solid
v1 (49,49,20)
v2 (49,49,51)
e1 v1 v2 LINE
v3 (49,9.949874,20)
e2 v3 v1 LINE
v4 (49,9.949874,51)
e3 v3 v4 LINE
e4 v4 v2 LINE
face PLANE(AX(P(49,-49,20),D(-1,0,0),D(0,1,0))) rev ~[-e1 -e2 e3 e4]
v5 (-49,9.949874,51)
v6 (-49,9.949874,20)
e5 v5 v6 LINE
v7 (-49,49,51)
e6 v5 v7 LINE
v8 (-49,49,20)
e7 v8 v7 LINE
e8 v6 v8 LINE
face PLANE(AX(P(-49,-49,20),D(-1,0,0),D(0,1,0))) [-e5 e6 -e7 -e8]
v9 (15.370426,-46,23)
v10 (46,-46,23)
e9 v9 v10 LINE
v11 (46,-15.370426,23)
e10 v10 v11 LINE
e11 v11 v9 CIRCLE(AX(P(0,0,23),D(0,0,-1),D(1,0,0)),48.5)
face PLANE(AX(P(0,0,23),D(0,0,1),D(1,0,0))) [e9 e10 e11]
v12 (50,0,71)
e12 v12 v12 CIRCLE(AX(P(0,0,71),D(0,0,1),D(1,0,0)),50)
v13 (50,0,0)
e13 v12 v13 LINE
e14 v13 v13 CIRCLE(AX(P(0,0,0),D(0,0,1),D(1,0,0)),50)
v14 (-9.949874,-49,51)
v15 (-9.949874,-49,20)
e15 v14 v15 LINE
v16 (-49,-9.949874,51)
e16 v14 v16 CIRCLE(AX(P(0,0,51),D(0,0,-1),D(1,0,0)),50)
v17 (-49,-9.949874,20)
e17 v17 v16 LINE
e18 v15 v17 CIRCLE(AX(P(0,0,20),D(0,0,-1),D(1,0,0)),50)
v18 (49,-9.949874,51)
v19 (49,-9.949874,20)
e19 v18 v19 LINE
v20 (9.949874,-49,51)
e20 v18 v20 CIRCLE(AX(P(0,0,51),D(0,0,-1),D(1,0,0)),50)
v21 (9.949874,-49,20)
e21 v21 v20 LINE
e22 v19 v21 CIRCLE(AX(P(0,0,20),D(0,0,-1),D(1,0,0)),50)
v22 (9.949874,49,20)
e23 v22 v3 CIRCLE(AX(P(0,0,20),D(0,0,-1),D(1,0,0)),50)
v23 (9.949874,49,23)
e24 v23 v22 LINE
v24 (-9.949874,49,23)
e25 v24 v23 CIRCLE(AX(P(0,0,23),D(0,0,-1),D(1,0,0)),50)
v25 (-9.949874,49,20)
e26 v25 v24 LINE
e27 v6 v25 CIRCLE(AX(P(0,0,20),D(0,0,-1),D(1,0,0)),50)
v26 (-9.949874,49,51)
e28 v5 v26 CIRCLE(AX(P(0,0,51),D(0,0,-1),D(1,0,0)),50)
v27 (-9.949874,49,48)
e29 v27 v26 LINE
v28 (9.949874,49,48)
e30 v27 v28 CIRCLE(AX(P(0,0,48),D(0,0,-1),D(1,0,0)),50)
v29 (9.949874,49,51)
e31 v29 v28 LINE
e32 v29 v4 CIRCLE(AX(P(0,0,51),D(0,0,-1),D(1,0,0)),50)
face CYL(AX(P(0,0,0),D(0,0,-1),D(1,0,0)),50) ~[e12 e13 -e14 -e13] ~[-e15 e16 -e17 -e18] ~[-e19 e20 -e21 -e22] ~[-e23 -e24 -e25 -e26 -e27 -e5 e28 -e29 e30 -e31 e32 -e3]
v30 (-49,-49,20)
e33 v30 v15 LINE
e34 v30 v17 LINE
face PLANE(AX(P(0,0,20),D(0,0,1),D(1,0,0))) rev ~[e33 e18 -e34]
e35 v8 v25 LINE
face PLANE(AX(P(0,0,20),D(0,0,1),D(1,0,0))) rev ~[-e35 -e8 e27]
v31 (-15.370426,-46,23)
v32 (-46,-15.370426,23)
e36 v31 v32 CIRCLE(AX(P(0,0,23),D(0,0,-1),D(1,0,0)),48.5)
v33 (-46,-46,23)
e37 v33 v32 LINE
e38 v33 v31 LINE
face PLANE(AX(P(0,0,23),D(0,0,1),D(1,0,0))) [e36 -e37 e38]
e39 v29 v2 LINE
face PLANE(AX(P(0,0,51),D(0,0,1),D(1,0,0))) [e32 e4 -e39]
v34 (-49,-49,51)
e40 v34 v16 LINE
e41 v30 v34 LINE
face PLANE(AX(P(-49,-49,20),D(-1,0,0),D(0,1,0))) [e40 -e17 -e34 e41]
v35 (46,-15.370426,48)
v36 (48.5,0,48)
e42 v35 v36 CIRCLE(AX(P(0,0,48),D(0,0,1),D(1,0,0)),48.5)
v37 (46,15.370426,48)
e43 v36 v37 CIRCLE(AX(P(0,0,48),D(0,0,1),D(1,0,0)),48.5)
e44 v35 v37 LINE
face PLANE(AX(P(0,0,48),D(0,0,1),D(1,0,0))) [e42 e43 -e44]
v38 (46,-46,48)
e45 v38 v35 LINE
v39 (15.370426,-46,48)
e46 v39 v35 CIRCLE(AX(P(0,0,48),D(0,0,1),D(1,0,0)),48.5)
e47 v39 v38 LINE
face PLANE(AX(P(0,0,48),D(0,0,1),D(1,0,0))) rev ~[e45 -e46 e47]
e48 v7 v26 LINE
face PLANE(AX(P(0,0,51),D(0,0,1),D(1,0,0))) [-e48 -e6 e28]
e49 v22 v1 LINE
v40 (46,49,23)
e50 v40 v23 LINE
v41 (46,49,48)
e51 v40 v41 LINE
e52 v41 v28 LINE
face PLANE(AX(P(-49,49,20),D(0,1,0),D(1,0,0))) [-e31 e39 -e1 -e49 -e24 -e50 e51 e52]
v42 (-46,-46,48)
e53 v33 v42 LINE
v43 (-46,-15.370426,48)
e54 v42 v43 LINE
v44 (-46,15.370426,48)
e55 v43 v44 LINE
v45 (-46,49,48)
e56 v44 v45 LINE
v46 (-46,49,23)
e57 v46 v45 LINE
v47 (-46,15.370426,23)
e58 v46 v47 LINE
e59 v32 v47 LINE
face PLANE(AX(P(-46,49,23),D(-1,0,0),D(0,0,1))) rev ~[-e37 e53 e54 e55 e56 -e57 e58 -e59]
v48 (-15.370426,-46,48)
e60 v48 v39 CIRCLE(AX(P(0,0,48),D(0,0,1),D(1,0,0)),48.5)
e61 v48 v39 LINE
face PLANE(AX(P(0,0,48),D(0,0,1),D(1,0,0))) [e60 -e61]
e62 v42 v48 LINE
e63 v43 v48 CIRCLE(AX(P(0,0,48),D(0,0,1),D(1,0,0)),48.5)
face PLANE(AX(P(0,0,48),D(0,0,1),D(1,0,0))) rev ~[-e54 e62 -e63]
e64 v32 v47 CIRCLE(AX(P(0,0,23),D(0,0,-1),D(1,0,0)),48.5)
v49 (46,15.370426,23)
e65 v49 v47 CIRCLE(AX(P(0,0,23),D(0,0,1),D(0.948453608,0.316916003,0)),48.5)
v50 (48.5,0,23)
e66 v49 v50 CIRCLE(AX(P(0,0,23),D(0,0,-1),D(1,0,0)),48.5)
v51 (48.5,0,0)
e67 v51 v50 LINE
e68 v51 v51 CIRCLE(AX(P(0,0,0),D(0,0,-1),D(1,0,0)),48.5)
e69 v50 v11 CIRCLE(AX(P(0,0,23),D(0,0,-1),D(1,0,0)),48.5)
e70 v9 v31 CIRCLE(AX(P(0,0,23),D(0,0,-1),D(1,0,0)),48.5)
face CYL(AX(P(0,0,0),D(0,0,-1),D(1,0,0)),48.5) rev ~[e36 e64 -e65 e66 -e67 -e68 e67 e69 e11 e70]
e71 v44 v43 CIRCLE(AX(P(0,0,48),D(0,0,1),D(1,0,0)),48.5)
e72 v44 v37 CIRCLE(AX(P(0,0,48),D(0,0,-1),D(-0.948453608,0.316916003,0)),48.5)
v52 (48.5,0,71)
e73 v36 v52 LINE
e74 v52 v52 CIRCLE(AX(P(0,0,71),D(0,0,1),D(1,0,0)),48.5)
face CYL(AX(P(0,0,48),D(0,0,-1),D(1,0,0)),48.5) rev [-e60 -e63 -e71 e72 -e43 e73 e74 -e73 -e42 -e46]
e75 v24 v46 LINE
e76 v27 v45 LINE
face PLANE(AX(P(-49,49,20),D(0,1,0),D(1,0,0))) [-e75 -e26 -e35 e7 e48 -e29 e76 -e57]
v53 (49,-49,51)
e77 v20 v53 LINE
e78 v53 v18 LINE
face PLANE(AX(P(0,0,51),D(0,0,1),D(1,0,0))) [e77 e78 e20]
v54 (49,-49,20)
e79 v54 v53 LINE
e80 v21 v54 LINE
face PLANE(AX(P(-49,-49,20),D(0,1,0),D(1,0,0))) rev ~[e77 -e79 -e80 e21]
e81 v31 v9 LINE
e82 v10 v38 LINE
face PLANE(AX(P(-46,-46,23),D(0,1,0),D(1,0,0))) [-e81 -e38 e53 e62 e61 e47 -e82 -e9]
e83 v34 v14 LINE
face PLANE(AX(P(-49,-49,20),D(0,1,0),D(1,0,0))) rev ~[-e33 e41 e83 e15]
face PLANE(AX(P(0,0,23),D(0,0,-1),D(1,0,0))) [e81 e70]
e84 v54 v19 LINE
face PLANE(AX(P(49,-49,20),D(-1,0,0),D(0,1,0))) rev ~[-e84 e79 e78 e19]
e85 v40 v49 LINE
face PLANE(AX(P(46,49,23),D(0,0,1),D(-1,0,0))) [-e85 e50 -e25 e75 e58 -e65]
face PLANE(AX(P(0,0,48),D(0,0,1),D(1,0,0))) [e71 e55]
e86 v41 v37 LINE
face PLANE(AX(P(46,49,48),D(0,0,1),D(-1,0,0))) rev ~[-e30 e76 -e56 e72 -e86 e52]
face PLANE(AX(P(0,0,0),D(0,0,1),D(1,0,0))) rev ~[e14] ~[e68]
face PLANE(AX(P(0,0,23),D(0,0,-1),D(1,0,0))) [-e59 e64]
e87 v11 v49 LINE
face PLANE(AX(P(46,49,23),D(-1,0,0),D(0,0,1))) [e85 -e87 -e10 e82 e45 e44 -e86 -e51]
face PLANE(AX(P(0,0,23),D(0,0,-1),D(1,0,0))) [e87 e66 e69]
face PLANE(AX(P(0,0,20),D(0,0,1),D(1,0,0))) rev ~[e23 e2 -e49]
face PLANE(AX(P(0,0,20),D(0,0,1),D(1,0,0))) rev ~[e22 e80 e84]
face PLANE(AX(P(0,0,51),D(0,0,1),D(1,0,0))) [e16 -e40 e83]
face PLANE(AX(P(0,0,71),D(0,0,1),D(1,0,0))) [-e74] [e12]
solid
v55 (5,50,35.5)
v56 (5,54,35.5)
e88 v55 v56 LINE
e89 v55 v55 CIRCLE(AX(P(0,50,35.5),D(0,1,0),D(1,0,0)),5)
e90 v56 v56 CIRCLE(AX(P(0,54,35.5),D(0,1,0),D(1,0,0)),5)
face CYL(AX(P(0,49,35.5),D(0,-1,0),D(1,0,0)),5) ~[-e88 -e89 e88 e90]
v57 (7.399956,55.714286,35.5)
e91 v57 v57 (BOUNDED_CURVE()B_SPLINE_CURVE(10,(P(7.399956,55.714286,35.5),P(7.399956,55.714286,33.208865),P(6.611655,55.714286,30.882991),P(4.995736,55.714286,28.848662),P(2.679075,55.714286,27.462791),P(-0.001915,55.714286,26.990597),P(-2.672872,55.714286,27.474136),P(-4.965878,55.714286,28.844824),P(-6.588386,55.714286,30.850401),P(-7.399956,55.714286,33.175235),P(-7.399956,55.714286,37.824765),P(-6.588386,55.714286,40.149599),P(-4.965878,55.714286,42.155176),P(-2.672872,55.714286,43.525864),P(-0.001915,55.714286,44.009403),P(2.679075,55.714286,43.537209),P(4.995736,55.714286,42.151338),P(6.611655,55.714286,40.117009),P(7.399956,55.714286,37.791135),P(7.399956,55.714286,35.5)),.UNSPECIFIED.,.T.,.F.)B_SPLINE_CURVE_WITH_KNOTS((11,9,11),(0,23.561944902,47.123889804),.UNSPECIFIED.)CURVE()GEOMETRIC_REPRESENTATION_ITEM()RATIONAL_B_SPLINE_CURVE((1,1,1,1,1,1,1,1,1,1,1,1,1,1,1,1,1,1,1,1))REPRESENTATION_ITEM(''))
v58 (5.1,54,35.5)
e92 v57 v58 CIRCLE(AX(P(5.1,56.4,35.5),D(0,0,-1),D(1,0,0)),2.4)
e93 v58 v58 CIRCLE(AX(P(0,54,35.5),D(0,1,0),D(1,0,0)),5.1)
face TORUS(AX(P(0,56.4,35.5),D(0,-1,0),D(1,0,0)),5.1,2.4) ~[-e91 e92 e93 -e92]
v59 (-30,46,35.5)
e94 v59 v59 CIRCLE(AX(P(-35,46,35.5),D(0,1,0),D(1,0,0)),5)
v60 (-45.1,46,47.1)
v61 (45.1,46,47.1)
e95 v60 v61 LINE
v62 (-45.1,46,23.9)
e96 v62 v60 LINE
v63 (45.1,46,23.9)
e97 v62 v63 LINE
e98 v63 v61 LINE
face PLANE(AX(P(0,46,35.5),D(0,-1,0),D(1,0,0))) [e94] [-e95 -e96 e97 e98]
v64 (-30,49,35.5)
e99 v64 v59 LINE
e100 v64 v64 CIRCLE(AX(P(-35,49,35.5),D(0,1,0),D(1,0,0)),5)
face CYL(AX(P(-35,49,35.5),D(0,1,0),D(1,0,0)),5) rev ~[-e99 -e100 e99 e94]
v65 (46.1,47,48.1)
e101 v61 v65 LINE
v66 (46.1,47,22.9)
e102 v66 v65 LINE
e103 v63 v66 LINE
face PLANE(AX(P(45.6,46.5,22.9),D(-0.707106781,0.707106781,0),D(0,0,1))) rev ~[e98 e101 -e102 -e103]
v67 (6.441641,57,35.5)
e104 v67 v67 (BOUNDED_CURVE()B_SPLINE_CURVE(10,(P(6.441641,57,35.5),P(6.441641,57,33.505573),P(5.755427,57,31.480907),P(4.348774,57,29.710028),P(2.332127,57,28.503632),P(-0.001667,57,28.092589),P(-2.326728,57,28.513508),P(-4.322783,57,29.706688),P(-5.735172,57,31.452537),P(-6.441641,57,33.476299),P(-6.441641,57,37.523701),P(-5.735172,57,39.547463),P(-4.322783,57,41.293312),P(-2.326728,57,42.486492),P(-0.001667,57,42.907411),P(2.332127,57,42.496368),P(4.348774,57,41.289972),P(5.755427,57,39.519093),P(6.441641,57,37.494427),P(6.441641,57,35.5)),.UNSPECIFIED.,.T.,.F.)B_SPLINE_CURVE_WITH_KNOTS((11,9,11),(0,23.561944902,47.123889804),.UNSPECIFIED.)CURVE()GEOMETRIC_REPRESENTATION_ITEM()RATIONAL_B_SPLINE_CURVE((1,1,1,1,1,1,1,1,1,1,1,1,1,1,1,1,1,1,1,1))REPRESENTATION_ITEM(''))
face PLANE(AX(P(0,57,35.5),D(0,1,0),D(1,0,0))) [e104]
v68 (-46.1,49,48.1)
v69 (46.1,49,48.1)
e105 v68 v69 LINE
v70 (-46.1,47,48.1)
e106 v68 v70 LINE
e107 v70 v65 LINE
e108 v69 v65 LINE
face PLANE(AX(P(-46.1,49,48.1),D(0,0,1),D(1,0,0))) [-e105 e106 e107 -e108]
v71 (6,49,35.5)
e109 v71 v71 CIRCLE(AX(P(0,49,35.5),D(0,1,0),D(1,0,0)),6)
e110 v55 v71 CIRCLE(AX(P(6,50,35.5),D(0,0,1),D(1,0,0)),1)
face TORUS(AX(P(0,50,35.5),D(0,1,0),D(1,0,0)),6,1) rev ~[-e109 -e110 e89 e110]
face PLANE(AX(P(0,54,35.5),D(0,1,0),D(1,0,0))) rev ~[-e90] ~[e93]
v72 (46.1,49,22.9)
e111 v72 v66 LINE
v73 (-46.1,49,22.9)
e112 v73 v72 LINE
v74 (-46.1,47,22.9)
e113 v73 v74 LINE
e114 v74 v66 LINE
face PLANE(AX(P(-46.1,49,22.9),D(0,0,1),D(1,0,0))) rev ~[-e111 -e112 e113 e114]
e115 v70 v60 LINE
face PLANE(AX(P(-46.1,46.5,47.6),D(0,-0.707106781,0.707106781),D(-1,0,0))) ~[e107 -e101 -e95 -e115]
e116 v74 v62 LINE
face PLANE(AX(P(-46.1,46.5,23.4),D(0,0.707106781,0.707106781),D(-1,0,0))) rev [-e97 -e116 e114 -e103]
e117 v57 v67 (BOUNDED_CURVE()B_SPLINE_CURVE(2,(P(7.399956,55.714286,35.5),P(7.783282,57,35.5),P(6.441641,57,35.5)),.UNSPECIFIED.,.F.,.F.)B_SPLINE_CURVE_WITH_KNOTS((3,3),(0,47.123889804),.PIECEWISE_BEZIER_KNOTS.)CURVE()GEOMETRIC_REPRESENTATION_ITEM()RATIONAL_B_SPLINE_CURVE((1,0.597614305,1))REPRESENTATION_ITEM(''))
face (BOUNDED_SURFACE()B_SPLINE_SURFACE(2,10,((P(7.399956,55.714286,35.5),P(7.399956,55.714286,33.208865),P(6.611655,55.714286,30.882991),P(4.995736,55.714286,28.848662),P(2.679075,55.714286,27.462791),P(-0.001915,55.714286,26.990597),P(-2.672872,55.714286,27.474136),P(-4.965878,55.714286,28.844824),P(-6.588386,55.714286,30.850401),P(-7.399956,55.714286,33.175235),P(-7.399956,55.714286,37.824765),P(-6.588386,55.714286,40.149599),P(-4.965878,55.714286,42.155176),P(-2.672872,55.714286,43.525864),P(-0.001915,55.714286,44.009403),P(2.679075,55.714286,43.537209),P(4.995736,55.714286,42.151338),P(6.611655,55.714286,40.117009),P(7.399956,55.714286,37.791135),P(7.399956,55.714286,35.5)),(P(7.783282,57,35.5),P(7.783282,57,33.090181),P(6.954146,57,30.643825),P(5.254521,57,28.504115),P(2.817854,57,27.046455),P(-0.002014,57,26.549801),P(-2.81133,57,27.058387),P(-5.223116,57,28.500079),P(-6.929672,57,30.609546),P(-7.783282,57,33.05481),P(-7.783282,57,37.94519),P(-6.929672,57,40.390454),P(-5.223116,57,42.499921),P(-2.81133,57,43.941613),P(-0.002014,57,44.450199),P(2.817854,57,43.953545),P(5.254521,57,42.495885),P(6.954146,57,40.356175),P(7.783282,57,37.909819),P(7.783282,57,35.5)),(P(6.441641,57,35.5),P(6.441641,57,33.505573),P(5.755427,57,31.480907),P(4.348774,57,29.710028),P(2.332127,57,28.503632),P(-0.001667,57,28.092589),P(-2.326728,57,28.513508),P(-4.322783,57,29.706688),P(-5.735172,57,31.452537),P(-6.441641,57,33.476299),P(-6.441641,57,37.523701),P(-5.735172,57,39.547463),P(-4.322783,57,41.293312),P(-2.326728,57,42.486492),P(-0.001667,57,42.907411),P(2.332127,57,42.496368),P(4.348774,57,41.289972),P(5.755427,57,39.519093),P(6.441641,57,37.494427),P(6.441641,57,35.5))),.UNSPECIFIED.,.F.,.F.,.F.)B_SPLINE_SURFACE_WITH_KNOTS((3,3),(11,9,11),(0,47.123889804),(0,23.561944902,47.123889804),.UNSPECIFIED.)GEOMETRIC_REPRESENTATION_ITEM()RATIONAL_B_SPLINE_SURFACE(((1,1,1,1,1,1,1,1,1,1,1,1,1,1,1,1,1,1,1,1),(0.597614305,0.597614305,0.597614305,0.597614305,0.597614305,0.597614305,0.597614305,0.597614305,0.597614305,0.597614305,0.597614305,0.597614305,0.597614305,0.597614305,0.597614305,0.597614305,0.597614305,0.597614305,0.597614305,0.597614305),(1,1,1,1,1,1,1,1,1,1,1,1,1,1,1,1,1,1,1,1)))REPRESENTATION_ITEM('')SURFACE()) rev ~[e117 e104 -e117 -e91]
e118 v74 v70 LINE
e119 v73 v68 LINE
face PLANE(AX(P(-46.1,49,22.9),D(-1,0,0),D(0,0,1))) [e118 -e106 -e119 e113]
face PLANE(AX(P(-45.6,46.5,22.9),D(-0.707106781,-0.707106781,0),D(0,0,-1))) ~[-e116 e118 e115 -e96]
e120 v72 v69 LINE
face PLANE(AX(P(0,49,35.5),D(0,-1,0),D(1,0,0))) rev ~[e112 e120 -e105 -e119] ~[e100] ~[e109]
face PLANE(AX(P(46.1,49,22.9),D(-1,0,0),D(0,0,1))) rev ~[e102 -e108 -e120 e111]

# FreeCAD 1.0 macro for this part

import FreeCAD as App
import Part
import Sketcher
from FreeCAD import Vector


def edges_at(feature, points):
    """Names of the edges that pass closest to the given points."""
    edges = feature.Shape.Edges
    near = lambda p: min(range(len(edges)), key=lambda i: edges[i].distToShape(Part.Vertex(*p))[0])
    return sorted({f"Edge{near(p) + 1}" for p in points})


def add_polygon(sketch, points):
    """Adds a closed chain of lines whose ends are joined by coincident constraints."""
    first, n = sketch.GeometryCount, len(points)
    for a, b in zip(points, points[1:] + points[:1]):
        sketch.addGeometry(Part.LineSegment(App.Vector(*a, 0), App.Vector(*b, 0)), False)
    for i in range(n):
        sketch.addConstraint(Sketcher.Constraint("Coincident", first + i, 2, first + (i + 1) % n, 1))

doc = App.newDocument("Part")
body = doc.addObject("PartDesign::Body", "Body")

# Sketch on XY plane
sketch1 = body.newObject("Sketcher::SketchObject", "Sketch")
sketch1.AttachmentSupport = (doc.getObject("XY_Plane"), [""])
sketch1.MapMode = "FlatFace"
sketch1.addGeometry(Part.Circle(Vector(0, 0, 0), Vector(0, 0, 1), 50), False)
sketch1.addConstraint([
    Sketcher.Constraint("Coincident", 0, 3, -1, 1),
    Sketcher.Constraint("Diameter", 0, 100.0),
])
pad1 = body.newObject("PartDesign::Pad", "Pad")
pad1.Profile = sketch1
pad1.Length = 51

# Sketch on XY plane
sketch2 = body.newObject("Sketcher::SketchObject", "Sketch001")
sketch2.AttachmentSupport = (doc.getObject("XY_Plane"), [""])
sketch2.MapMode = "FlatFace"
sketch2.AttachmentOffset = App.Placement(Vector(0, 0, 20), App.Rotation())
add_polygon(sketch2, [(-49, 49), (-49, -49), (49, -49), (49, 49)])  # lines 0-3
sketch2.addConstraint([
    Sketcher.Constraint("Vertical", 0),
    Sketcher.Constraint("Horizontal", 1),
    Sketcher.Constraint("Vertical", 2),
    Sketcher.Constraint("Horizontal", 3),
    Sketcher.Constraint("Symmetric", 0, 2, 2, 2, -1, 1),
    Sketcher.Constraint("Equal", 3, 0),
    Sketcher.Constraint("DistanceX", 1, 1, 1, 2, 98.0),
])
pad2 = body.newObject("PartDesign::Pad", "Pad001")
pad2.Profile = sketch2
pad2.Length = 31

# Sketch on XY plane
sketch3 = body.newObject("Sketcher::SketchObject", "Sketch002")
sketch3.AttachmentSupport = (doc.getObject("XY_Plane"), [""])
sketch3.MapMode = "FlatFace"
sketch3.AttachmentOffset = App.Placement(Vector(0, 0, 48), App.Rotation())
sketch3.addGeometry(Part.Circle(Vector(0, 0, 0), Vector(0, 0, 1), 50), False)
sketch3.addConstraint([
    Sketcher.Constraint("Coincident", 0, 3, -1, 1),
    Sketcher.Constraint("Diameter", 0, 100.0),
])
pad3 = body.newObject("PartDesign::Pad", "Pad002")
pad3.Profile = sketch3
pad3.Length = 23

# Sketch on XY plane
sketch4 = body.newObject("Sketcher::SketchObject", "Sketch003")
sketch4.AttachmentSupport = (doc.getObject("XY_Plane"), [""])
sketch4.MapMode = "FlatFace"
sketch4.AttachmentOffset = App.Placement(Vector(0, 0, 48), App.Rotation())
sketch4.addGeometry(Part.Circle(Vector(0, 0, 0), Vector(0, 0, 1), 48), False)
sketch4.addConstraint([
    Sketcher.Constraint("Coincident", 0, 3, -1, 1),
    Sketcher.Constraint("Diameter", 0, 97.0),
])
pocket1 = body.newObject("PartDesign::Pocket", "Pocket")
pocket1.Profile = sketch4
pocket1.Length = 23
pocket1.Reversed = True

# Sketch on XY plane
sketch5 = body.newObject("Sketcher::SketchObject", "Sketch004")
sketch5.AttachmentSupport = (doc.getObject("XY_Plane"), [""])
sketch5.MapMode = "FlatFace"
sketch5.AttachmentOffset = App.Placement(Vector(0, 0, 23), App.Rotation())
add_polygon(sketch5, [(-46, 46), (-46, -46), (46, -46), (46, 46)])  # lines 0-3
sketch5.addConstraint([
    Sketcher.Constraint("Vertical", 0),
    Sketcher.Constraint("Horizontal", 1),
    Sketcher.Constraint("Vertical", 2),
    Sketcher.Constraint("Horizontal", 3),
    Sketcher.Constraint("Symmetric", 0, 2, 2, 2, -1, 1),
    Sketcher.Constraint("Equal", 3, 0),
    Sketcher.Constraint("DistanceX", 1, 1, 1, 2, 92.0),
])
pocket2 = body.newObject("PartDesign::Pocket", "Pocket001")
pocket2.Profile = sketch5
pocket2.Length = 25
pocket2.Reversed = True

# Sketch on XY plane
sketch6 = body.newObject("Sketcher::SketchObject", "Sketch005")
sketch6.AttachmentSupport = (doc.getObject("XY_Plane"), [""])
sketch6.MapMode = "FlatFace"
sketch6.addGeometry(Part.Circle(Vector(0, 0, 0), Vector(0, 0, 1), 48), False)
sketch6.addConstraint([
    Sketcher.Constraint("Coincident", 0, 3, -1, 1),
    Sketcher.Constraint("Diameter", 0, 97.0),
])
pocket3 = body.newObject("PartDesign::Pocket", "Pocket002")
pocket3.Profile = sketch6
pocket3.Length = 23
pocket3.Reversed = True

# Sketch on XZ plane
sketch7 = body.newObject("Sketcher::SketchObject", "Sketch006")
sketch7.AttachmentSupport = (doc.getObject("XZ_Plane"), [""])
sketch7.MapMode = "FlatFace"
sketch7.AttachmentOffset = App.Placement(Vector(0, 0, -49), App.Rotation())
add_polygon(sketch7, [(46, 48), (46, 23), (-46, 23), (-46, 48)])  # lines 0-3
sketch7.addConstraint([
    Sketcher.Constraint("Vertical", 0),
    Sketcher.Constraint("Horizontal", 1),
    Sketcher.Constraint("Vertical", 2),
    Sketcher.Constraint("Horizontal", 3),
    Sketcher.Constraint("DistanceX", 1, 2, 1, 1, 92.0),
    Sketcher.Constraint("DistanceY", 0, 2, 0, 1, 25.0),
    Sketcher.Constraint("DistanceX", -1, 1, 0, 2, 46.0),
    Sketcher.Constraint("DistanceY", -1, 1, 0, 2, 23.0),
])
pocket4 = body.newObject("PartDesign::Pocket", "Pocket003")
pocket4.Profile = sketch7
pocket4.Length = 3
pocket4.Reversed = True

# Sketch on XZ plane
sketch8 = body.newObject("Sketcher::SketchObject", "Sketch007")
sketch8.AttachmentSupport = (doc.getObject("XZ_Plane"), [""])
sketch8.MapMode = "FlatFace"
sketch8.AttachmentOffset = App.Placement(Vector(0, 0, -49), App.Rotation())
add_polygon(sketch8, [(46, 48), (46, 23), (-46, 23), (-46, 48)])  # lines 0-3
sketch8.addConstraint([
    Sketcher.Constraint("Vertical", 0),
    Sketcher.Constraint("Horizontal", 1),
    Sketcher.Constraint("Vertical", 2),
    Sketcher.Constraint("Horizontal", 3),
    Sketcher.Constraint("DistanceX", 1, 2, 1, 1, 92.0),
    Sketcher.Constraint("DistanceY", 0, 2, 0, 1, 25.0),
    Sketcher.Constraint("DistanceX", -1, 1, 0, 2, 46.0),
    Sketcher.Constraint("DistanceY", -1, 1, 0, 2, 23.0),
])
pocket5 = body.newObject("PartDesign::Pocket", "Pocket004")
pocket5.Profile = sketch8
pocket5.Type = "ThroughAll"
body2 = doc.addObject("PartDesign::Body", "Body001")

# Sketch on XZ plane
sketch9 = body2.newObject("Sketcher::SketchObject", "Sketch008")
sketch9.AttachmentSupport = (doc.getObject("XZ_Plane001"), [""])
sketch9.MapMode = "FlatFace"
sketch9.AttachmentOffset = App.Placement(Vector(0, 0, -49), App.Rotation())
add_polygon(sketch9, [(-46, 48), (-46, 23), (46, 23), (46, 48)])  # lines 0-3
sketch9.addConstraint([
    Sketcher.Constraint("Vertical", 0),
    Sketcher.Constraint("Horizontal", 1),
    Sketcher.Constraint("Vertical", 2),
    Sketcher.Constraint("Horizontal", 3),
    Sketcher.Constraint("DistanceX", 1, 1, 1, 2, 92.2),
    Sketcher.Constraint("DistanceY", 0, 2, 0, 1, 25.2),
    Sketcher.Constraint("DistanceX", 0, 2, -1, 1, 46.1),
    Sketcher.Constraint("DistanceY", -1, 1, 0, 2, 22.9),
])
pad4 = body2.newObject("PartDesign::Pad", "Pad003")
pad4.Profile = sketch9
pad4.Length = 3

# Sketch on XZ plane
sketch10 = body2.newObject("Sketcher::SketchObject", "Sketch009")
sketch10.AttachmentSupport = (doc.getObject("XZ_Plane001"), [""])
sketch10.MapMode = "FlatFace"
sketch10.AttachmentOffset = App.Placement(Vector(0, 0, -49), App.Rotation())
sketch10.addGeometry(Part.Circle(Vector(-35, 36, 0), Vector(0, 0, 1), 5), False)
sketch10.addConstraint([
    Sketcher.Constraint("Diameter", 0, 10.0),
    Sketcher.Constraint("DistanceX", 0, 3, -1, 1, 35.0),
    Sketcher.Constraint("DistanceY", -1, 1, 0, 3, 35.5),
])
pocket6 = body2.newObject("PartDesign::Pocket", "Pocket005")
pocket6.Profile = sketch10
pocket6.Length = 3
pocket6.Reversed = True
doc.recompute()

chamfer = body2.newObject("PartDesign::Chamfer", "Chamfer")
chamfer.Base = (pocket6, edges_at(pocket6, [
    (46.1, 46, 35.5),
    (0, 46, 48.1),
    (-46.1, 46, 35.5),
    (0, 46, 22.9),
]))
chamfer.Size = 1

# Sketch on XZ plane
sketch11 = body2.newObject("Sketcher::SketchObject", "Sketch010")
sketch11.AttachmentSupport = (doc.getObject("XZ_Plane001"), [""])
sketch11.MapMode = "FlatFace"
sketch11.AttachmentOffset = App.Placement(Vector(0, 0, -49), App.Rotation())
sketch11.addGeometry(Part.Circle(Vector(0, 36, 0), Vector(0, 0, 1), 5), False)
sketch11.addConstraint([
    Sketcher.Constraint("PointOnObject", 0, 3, -2),
    Sketcher.Constraint("Diameter", 0, 10.0),
    Sketcher.Constraint("DistanceY", -1, 1, 0, 3, 35.5),
])
pad5 = body2.newObject("PartDesign::Pad", "Pad004")
pad5.Profile = sketch11
pad5.Length = 5
pad5.Reversed = True

# Sketch on XZ plane
sketch12 = body2.newObject("Sketcher::SketchObject", "Sketch011")
sketch12.AttachmentSupport = (doc.getObject("XZ_Plane001"), [""])
sketch12.MapMode = "FlatFace"
sketch12.AttachmentOffset = App.Placement(Vector(0, 0, -54), App.Rotation())
sketch12.addGeometry(Part.Circle(Vector(0, 36, 0), Vector(0, 0, 1), 8), False)
sketch12.addConstraint([
    Sketcher.Constraint("PointOnObject", 0, 3, -2),
    Sketcher.Constraint("Diameter", 0, 15.0),
    Sketcher.Constraint("DistanceY", -1, 1, 0, 3, 35.5),
])
pad6 = body2.newObject("PartDesign::Pad", "Pad005")
pad6.Profile = sketch12
pad6.Length = 3
pad6.Reversed = True
doc.recompute()

fillet = body2.newObject("PartDesign::Fillet", "Fillet")
fillet.Base = (pad6, edges_at(pad6, [(-7.5, 54, 35.5)]))
fillet.Radius = 2.4
doc.recompute()

fillet2 = body2.newObject("PartDesign::Fillet", "Fillet001")
fillet2.Base = (fillet, edges_at(fillet, [(-7.5, 57, 35.5)]))
fillet2.Radius = 1
doc.recompute()

fillet3 = body2.newObject("PartDesign::Fillet", "Fillet002")
fillet3.Base = (fillet2, edges_at(fillet2, [(-5, 49, 35.5)]))
fillet3.Radius = 1

doc.recompute()
